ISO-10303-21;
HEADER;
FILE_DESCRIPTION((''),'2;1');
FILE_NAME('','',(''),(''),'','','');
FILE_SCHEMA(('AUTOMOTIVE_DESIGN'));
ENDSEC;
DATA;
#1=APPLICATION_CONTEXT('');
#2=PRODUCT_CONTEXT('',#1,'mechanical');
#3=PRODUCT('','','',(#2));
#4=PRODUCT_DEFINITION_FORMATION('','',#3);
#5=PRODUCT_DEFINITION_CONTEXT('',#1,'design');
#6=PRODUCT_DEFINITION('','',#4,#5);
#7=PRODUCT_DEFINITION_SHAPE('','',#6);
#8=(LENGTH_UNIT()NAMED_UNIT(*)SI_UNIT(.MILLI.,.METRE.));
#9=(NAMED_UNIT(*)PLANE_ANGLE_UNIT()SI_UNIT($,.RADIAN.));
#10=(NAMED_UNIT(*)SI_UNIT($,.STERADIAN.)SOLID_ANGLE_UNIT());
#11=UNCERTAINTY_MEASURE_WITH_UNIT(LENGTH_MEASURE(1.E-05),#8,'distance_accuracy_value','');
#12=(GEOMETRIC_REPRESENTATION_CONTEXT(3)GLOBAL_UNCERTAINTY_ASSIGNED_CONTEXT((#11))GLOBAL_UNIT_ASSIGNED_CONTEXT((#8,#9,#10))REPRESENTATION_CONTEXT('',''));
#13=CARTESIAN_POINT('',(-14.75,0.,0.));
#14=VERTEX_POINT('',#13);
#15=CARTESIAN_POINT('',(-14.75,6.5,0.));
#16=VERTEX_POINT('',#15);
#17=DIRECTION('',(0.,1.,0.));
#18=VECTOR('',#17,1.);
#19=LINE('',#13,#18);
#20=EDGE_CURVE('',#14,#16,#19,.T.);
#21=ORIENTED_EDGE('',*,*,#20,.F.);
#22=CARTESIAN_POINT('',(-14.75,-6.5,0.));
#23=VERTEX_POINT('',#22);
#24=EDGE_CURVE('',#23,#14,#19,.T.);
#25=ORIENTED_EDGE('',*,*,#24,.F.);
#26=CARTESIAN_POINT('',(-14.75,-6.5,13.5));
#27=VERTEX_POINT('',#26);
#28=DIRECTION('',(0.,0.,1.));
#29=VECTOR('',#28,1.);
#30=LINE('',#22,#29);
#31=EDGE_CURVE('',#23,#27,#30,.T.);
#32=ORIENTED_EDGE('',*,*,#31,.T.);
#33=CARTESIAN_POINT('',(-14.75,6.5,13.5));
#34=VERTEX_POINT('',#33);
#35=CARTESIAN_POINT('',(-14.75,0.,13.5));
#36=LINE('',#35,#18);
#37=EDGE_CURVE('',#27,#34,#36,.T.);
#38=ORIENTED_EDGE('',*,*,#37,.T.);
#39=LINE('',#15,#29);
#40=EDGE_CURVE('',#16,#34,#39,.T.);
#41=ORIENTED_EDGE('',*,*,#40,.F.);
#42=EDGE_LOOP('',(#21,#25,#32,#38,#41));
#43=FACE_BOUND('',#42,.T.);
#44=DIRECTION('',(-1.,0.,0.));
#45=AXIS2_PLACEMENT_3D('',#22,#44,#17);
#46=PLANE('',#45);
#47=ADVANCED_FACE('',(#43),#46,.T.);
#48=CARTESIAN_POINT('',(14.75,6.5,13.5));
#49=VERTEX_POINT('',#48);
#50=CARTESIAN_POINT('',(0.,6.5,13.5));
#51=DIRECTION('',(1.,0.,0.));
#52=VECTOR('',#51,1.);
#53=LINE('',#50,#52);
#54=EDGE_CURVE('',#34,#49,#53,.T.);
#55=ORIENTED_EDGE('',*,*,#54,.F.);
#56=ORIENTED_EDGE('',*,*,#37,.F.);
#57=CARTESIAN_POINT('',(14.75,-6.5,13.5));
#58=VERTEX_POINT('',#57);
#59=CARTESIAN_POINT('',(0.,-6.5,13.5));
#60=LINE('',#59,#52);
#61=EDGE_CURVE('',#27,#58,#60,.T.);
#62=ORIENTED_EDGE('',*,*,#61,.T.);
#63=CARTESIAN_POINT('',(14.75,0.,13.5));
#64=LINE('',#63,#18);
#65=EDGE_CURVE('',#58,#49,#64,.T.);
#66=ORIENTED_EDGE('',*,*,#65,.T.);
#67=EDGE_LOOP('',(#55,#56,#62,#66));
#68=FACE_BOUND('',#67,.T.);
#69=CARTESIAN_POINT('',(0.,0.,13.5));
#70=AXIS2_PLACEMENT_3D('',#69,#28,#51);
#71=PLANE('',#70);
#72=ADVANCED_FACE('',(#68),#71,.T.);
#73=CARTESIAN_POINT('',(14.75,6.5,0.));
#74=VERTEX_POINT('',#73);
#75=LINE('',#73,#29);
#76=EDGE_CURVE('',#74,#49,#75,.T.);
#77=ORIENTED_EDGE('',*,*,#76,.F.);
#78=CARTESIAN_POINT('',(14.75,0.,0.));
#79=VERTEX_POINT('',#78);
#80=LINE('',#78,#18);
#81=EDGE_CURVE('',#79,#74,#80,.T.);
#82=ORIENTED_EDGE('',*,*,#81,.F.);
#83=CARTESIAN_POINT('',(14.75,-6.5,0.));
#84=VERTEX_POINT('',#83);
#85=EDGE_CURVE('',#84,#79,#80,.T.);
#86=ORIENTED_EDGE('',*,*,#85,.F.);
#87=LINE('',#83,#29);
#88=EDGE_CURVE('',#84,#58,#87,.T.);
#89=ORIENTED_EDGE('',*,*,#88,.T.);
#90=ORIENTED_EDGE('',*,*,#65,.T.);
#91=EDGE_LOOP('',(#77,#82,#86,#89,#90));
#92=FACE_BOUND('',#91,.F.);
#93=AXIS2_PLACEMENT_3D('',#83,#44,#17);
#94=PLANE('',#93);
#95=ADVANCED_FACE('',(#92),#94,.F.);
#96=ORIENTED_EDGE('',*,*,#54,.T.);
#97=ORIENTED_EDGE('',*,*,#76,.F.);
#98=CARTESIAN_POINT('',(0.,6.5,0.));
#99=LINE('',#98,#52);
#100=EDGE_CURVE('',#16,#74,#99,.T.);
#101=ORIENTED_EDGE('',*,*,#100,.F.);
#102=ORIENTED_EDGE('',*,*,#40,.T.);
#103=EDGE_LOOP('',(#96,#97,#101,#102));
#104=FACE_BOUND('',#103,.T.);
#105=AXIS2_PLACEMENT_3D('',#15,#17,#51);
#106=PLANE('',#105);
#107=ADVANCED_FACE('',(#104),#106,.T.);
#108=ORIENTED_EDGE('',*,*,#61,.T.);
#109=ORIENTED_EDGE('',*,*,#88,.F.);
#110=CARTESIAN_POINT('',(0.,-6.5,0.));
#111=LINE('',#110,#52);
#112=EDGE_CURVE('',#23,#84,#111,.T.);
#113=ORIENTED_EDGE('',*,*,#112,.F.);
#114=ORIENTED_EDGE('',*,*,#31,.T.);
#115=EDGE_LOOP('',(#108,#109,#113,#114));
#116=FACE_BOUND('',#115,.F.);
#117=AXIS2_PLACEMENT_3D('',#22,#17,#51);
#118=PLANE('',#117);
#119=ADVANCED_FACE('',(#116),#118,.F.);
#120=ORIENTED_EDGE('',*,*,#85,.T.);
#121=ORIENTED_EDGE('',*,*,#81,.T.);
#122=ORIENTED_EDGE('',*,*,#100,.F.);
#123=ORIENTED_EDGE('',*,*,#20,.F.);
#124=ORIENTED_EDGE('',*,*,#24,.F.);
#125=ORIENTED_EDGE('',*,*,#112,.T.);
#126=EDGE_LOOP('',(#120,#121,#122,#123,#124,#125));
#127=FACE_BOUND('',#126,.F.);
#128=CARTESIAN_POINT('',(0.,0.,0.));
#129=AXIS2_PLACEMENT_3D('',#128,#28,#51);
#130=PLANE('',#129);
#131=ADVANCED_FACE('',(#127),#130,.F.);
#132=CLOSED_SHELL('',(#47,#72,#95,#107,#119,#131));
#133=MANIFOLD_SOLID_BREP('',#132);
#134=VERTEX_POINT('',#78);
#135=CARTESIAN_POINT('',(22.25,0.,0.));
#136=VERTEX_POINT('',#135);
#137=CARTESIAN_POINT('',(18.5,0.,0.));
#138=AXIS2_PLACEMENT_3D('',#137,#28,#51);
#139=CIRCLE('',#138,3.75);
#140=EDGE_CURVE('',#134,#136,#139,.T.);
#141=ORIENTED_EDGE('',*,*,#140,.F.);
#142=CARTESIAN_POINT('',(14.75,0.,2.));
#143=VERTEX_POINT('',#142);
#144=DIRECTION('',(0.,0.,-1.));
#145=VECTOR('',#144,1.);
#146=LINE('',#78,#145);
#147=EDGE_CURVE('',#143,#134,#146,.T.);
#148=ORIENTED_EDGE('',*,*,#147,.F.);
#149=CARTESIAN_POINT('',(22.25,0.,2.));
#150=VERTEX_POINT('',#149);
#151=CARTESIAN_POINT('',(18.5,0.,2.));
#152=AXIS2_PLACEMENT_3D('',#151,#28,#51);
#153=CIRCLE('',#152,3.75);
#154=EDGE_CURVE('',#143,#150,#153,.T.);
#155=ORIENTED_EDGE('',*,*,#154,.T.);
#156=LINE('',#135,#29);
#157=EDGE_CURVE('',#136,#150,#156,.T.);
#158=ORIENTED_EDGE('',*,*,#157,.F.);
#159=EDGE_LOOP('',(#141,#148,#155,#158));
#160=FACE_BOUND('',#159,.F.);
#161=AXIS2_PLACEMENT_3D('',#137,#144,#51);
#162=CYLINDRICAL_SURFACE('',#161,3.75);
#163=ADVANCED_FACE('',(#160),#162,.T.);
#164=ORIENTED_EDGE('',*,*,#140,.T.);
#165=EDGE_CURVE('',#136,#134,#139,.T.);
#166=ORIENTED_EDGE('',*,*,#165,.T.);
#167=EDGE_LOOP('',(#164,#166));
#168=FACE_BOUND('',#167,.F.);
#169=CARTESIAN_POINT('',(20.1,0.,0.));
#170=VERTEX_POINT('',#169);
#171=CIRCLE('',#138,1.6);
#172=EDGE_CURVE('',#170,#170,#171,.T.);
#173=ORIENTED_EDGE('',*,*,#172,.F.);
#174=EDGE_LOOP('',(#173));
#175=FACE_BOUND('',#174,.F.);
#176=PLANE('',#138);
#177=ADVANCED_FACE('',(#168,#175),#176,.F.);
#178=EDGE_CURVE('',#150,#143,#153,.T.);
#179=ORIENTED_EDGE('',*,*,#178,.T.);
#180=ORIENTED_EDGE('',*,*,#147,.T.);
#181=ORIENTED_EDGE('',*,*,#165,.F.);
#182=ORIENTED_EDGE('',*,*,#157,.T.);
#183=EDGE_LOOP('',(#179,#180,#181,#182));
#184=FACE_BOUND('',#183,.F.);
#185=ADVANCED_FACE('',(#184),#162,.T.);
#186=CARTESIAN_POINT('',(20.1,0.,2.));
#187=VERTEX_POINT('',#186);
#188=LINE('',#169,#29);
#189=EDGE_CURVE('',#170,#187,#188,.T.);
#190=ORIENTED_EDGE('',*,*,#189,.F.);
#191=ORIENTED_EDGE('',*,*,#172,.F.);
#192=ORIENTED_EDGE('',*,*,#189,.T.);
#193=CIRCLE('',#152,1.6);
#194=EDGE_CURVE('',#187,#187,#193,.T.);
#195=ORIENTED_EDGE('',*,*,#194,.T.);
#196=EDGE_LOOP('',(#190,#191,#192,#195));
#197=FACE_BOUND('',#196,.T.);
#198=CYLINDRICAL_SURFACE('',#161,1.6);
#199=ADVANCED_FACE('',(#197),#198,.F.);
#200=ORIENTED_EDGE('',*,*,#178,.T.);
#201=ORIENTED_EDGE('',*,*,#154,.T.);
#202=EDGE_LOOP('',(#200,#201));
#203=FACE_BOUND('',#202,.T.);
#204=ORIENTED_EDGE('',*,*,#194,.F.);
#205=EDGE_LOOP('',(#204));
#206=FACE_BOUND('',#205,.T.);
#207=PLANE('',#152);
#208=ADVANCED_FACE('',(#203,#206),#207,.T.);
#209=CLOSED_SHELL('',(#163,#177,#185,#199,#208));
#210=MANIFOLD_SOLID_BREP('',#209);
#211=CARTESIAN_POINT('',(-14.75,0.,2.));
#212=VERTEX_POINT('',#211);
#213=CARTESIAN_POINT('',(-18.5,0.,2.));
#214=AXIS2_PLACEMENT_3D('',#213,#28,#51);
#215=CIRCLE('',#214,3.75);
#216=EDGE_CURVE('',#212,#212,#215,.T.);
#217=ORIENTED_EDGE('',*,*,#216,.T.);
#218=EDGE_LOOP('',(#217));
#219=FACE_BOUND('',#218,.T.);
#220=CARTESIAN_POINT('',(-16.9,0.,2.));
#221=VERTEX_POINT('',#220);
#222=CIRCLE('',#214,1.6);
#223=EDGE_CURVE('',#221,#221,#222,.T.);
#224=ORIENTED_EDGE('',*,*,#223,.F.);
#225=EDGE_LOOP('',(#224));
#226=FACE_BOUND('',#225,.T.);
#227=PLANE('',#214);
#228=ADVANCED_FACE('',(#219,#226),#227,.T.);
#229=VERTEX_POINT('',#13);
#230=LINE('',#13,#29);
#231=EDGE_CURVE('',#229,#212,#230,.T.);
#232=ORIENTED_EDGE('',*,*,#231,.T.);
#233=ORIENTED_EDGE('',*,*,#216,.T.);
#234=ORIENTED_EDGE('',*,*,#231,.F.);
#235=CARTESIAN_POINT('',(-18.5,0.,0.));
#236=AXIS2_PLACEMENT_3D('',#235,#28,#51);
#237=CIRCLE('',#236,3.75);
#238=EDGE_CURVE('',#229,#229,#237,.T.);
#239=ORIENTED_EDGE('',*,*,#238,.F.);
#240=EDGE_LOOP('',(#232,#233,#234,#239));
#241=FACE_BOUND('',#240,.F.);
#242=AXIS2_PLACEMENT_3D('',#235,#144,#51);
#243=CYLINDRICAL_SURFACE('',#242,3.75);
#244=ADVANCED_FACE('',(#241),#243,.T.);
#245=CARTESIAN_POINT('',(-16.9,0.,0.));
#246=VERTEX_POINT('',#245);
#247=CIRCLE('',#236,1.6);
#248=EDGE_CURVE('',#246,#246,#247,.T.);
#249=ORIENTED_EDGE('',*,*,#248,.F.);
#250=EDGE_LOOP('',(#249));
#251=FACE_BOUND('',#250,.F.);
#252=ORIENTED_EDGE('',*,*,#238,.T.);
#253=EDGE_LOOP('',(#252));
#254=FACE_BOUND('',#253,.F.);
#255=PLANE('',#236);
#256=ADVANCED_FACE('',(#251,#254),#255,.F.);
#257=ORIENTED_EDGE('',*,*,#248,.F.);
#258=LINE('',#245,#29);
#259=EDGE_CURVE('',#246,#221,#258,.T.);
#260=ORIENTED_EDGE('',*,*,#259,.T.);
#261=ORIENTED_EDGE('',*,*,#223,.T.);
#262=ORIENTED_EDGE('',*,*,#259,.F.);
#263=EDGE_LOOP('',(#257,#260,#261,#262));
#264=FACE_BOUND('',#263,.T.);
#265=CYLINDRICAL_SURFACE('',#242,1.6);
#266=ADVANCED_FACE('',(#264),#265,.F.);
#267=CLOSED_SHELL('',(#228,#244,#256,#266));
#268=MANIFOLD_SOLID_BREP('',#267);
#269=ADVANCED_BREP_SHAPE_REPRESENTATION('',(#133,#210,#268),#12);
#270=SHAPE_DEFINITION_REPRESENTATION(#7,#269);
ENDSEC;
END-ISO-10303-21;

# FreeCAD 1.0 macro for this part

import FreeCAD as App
import Part
import Sketcher
from FreeCAD import Vector


def add_polygon(sketch, points):
    """Adds a closed chain of lines whose ends are joined by coincident constraints."""
    first, n = sketch.GeometryCount, len(points)
    for a, b in zip(points, points[1:] + points[:1]):
        sketch.addGeometry(Part.LineSegment(App.Vector(*a, 0), App.Vector(*b, 0)), False)
    for i in range(n):
        sketch.addConstraint(Sketcher.Constraint("Coincident", first + i, 2, first + (i + 1) % n, 1))

doc = App.newDocument("Part")
params = doc.addObject("Spreadsheet::Sheet", "Params")
for row, (alias, value) in enumerate([
    ("sketch1_height", "13 mm"),
    ("sketch1_width", "29.5 mm"),
    ("pad1_length", "13.5 mm"),
    ("sketch2_diameter", "7.5 mm"),
    ("sketch2_diameter2", "3.2 mm"),
    ("pad2_length", "2 mm"),
], start=1):
    params.set(f"A{row}", alias)
    params.set(f"B{row}", "=" + value)
    params.setAlias(f"B{row}", alias)

body = doc.addObject("PartDesign::Body", "Body")
body.AllowCompound = True

# Sketch on XY plane
sketch1 = body.newObject("Sketcher::SketchObject", "Sketch")
sketch1.AttachmentSupport = (doc.getObject("XY_Plane"), [""])
sketch1.MapMode = "FlatFace"
add_polygon(sketch1, [(-15, 6), (-15, -6), (15, -6), (15, 6)])  # lines 0-3
sketch1.addConstraint([
    Sketcher.Constraint("Vertical", 0),
    Sketcher.Constraint("Horizontal", 1),
    Sketcher.Constraint("Vertical", 2),
    Sketcher.Constraint("Horizontal", 3),
    Sketcher.Constraint("Symmetric", 0, 2, 2, 2, -1, 1),
    Sketcher.Constraint("DistanceY", 0, 2, 0, 1, 13.0),
    Sketcher.Constraint("DistanceX", 1, 1, 1, 2, 29.5),
])
sketch1.setExpression("Constraints[9]", "Params.sketch1_height")
sketch1.setExpression("Constraints[10]", "Params.sketch1_width")
pad1 = body.newObject("PartDesign::Pad", "Pad")
pad1.Profile = sketch1
pad1.setExpression("Length", "Params.pad1_length")

# Sketch on XY plane
sketch2 = body.newObject("Sketcher::SketchObject", "Sketch001")
sketch2.AttachmentSupport = (doc.getObject("XY_Plane"), [""])
sketch2.MapMode = "FlatFace"
sketch2.addGeometry([
    Part.Circle(Vector(-18.5, 0, 0), Vector(0, 0, 1), 3.8),
    Part.Circle(Vector(-18.5, 0, 0), Vector(0, 0, 1), 1.6),
    Part.Circle(Vector(18.5, 0, 0), Vector(0, 0, 1), 3.8),
    Part.Circle(Vector(18.5, 0, 0), Vector(0, 0, 1), 1.6),
], False)
sketch2.addConstraint([
    Sketcher.Constraint("Coincident", 1, 3, 0, 3),
    Sketcher.Constraint("Coincident", 3, 3, 2, 3),
    Sketcher.Constraint("Equal", 0, 2),
    Sketcher.Constraint("Equal", 1, 3),
    Sketcher.Constraint("Symmetric", 0, 3, 2, 3, -1, 1),
    Sketcher.Constraint("PointOnObject", 0, 3, -1),
    Sketcher.Constraint("Diameter", 0, 7.5),
    Sketcher.Constraint("Diameter", 1, 3.2),
    Sketcher.Constraint("DistanceX", 0, 3, 2, 3, 37.0),
])
sketch2.setExpression("Constraints[6]", "Params.sketch2_diameter")
sketch2.setExpression("Constraints[7]", "Params.sketch2_diameter2")
pad2 = body.newObject("PartDesign::Pad", "Pad001")
pad2.Profile = sketch2
pad2.setExpression("Length", "Params.pad2_length")

doc.recompute()
